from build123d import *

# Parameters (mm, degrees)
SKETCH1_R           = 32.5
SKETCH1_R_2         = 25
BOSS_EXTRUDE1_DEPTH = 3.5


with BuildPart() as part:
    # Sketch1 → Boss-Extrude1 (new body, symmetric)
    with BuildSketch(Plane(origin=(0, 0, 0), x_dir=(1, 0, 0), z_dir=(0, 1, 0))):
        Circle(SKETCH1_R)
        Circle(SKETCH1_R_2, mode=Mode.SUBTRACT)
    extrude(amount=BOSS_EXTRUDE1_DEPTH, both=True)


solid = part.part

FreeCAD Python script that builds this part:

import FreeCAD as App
import Part
import Sketcher

V = App.Vector

doc = App.newDocument("Part")
body = doc.addObject("PartDesign::Body", "Body")

sketch1 = doc.addObject("Sketcher::SketchObject", "Sketch")
body.addObject(sketch1)
sketch1.AttachmentSupport = (doc.XZ_Plane, [""])
sketch1.MapMode = "FlatFace"
sketch1.addGeometry([
    Part.Circle(V(0, 0, 0), V(0, 0, 1), 32),
    Part.Circle(V(0, 0, 0), V(0, 0, 1), 25),
], False)
sketch1.addConstraint([
    Sketcher.Constraint("Coincident", 0, 3, -1, 1),
    Sketcher.Constraint("Coincident", 1, 3, -1, 1),
    Sketcher.Constraint("Diameter", 0, 65.0),
    Sketcher.Constraint("Diameter", 1, 50.0),
])
pad1 = doc.addObject("PartDesign::Pad", "Pad")
body.addObject(pad1)
pad1.Profile = sketch1
pad1.Length = 7
pad1.Midplane = True

doc.recompute()
